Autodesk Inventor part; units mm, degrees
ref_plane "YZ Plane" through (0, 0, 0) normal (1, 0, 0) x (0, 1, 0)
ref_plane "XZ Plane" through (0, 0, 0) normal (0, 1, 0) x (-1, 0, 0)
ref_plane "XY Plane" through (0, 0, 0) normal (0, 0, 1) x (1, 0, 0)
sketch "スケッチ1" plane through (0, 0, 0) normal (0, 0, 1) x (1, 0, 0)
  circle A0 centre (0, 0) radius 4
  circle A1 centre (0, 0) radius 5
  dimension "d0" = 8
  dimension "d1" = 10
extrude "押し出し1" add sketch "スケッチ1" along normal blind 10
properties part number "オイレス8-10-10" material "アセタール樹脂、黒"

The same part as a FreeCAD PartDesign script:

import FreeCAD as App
import Part
import Sketcher

V = App.Vector
Q = App.Units.Quantity

doc = App.newDocument("Part")
body = doc.addObject("PartDesign::Body", "Body")

# Sketch on XY plane
sketch1 = doc.addObject("Sketcher::SketchObject", "Sketch")
body.addObject(sketch1)
sketch1.AttachmentSupport = (doc.XY_Plane, [""])
sketch1.MapMode = "FlatFace"
sketch1.addGeometry(Part.Circle(V(0, 0, 0), V(0, 0, 1), 5), False)
sketch1.addGeometry(Part.Circle(V(0, 0, 0), V(0, 0, 1), 4), False)
sketch1.addConstraint(Sketcher.Constraint("Coincident", 0, 3, -1, 1))
sketch1.addConstraint(Sketcher.Constraint("Coincident", 1, 3, -1, 1))
sketch1.addConstraint(Sketcher.Constraint("Diameter", 0, Q("10 mm")))
sketch1.addConstraint(Sketcher.Constraint("Diameter", 1, Q("8 mm")))
pad1 = doc.addObject("PartDesign::Pad", "Pad")
body.addObject(pad1)
pad1.Profile = sketch1
pad1.Length = 10

doc.recompute()
